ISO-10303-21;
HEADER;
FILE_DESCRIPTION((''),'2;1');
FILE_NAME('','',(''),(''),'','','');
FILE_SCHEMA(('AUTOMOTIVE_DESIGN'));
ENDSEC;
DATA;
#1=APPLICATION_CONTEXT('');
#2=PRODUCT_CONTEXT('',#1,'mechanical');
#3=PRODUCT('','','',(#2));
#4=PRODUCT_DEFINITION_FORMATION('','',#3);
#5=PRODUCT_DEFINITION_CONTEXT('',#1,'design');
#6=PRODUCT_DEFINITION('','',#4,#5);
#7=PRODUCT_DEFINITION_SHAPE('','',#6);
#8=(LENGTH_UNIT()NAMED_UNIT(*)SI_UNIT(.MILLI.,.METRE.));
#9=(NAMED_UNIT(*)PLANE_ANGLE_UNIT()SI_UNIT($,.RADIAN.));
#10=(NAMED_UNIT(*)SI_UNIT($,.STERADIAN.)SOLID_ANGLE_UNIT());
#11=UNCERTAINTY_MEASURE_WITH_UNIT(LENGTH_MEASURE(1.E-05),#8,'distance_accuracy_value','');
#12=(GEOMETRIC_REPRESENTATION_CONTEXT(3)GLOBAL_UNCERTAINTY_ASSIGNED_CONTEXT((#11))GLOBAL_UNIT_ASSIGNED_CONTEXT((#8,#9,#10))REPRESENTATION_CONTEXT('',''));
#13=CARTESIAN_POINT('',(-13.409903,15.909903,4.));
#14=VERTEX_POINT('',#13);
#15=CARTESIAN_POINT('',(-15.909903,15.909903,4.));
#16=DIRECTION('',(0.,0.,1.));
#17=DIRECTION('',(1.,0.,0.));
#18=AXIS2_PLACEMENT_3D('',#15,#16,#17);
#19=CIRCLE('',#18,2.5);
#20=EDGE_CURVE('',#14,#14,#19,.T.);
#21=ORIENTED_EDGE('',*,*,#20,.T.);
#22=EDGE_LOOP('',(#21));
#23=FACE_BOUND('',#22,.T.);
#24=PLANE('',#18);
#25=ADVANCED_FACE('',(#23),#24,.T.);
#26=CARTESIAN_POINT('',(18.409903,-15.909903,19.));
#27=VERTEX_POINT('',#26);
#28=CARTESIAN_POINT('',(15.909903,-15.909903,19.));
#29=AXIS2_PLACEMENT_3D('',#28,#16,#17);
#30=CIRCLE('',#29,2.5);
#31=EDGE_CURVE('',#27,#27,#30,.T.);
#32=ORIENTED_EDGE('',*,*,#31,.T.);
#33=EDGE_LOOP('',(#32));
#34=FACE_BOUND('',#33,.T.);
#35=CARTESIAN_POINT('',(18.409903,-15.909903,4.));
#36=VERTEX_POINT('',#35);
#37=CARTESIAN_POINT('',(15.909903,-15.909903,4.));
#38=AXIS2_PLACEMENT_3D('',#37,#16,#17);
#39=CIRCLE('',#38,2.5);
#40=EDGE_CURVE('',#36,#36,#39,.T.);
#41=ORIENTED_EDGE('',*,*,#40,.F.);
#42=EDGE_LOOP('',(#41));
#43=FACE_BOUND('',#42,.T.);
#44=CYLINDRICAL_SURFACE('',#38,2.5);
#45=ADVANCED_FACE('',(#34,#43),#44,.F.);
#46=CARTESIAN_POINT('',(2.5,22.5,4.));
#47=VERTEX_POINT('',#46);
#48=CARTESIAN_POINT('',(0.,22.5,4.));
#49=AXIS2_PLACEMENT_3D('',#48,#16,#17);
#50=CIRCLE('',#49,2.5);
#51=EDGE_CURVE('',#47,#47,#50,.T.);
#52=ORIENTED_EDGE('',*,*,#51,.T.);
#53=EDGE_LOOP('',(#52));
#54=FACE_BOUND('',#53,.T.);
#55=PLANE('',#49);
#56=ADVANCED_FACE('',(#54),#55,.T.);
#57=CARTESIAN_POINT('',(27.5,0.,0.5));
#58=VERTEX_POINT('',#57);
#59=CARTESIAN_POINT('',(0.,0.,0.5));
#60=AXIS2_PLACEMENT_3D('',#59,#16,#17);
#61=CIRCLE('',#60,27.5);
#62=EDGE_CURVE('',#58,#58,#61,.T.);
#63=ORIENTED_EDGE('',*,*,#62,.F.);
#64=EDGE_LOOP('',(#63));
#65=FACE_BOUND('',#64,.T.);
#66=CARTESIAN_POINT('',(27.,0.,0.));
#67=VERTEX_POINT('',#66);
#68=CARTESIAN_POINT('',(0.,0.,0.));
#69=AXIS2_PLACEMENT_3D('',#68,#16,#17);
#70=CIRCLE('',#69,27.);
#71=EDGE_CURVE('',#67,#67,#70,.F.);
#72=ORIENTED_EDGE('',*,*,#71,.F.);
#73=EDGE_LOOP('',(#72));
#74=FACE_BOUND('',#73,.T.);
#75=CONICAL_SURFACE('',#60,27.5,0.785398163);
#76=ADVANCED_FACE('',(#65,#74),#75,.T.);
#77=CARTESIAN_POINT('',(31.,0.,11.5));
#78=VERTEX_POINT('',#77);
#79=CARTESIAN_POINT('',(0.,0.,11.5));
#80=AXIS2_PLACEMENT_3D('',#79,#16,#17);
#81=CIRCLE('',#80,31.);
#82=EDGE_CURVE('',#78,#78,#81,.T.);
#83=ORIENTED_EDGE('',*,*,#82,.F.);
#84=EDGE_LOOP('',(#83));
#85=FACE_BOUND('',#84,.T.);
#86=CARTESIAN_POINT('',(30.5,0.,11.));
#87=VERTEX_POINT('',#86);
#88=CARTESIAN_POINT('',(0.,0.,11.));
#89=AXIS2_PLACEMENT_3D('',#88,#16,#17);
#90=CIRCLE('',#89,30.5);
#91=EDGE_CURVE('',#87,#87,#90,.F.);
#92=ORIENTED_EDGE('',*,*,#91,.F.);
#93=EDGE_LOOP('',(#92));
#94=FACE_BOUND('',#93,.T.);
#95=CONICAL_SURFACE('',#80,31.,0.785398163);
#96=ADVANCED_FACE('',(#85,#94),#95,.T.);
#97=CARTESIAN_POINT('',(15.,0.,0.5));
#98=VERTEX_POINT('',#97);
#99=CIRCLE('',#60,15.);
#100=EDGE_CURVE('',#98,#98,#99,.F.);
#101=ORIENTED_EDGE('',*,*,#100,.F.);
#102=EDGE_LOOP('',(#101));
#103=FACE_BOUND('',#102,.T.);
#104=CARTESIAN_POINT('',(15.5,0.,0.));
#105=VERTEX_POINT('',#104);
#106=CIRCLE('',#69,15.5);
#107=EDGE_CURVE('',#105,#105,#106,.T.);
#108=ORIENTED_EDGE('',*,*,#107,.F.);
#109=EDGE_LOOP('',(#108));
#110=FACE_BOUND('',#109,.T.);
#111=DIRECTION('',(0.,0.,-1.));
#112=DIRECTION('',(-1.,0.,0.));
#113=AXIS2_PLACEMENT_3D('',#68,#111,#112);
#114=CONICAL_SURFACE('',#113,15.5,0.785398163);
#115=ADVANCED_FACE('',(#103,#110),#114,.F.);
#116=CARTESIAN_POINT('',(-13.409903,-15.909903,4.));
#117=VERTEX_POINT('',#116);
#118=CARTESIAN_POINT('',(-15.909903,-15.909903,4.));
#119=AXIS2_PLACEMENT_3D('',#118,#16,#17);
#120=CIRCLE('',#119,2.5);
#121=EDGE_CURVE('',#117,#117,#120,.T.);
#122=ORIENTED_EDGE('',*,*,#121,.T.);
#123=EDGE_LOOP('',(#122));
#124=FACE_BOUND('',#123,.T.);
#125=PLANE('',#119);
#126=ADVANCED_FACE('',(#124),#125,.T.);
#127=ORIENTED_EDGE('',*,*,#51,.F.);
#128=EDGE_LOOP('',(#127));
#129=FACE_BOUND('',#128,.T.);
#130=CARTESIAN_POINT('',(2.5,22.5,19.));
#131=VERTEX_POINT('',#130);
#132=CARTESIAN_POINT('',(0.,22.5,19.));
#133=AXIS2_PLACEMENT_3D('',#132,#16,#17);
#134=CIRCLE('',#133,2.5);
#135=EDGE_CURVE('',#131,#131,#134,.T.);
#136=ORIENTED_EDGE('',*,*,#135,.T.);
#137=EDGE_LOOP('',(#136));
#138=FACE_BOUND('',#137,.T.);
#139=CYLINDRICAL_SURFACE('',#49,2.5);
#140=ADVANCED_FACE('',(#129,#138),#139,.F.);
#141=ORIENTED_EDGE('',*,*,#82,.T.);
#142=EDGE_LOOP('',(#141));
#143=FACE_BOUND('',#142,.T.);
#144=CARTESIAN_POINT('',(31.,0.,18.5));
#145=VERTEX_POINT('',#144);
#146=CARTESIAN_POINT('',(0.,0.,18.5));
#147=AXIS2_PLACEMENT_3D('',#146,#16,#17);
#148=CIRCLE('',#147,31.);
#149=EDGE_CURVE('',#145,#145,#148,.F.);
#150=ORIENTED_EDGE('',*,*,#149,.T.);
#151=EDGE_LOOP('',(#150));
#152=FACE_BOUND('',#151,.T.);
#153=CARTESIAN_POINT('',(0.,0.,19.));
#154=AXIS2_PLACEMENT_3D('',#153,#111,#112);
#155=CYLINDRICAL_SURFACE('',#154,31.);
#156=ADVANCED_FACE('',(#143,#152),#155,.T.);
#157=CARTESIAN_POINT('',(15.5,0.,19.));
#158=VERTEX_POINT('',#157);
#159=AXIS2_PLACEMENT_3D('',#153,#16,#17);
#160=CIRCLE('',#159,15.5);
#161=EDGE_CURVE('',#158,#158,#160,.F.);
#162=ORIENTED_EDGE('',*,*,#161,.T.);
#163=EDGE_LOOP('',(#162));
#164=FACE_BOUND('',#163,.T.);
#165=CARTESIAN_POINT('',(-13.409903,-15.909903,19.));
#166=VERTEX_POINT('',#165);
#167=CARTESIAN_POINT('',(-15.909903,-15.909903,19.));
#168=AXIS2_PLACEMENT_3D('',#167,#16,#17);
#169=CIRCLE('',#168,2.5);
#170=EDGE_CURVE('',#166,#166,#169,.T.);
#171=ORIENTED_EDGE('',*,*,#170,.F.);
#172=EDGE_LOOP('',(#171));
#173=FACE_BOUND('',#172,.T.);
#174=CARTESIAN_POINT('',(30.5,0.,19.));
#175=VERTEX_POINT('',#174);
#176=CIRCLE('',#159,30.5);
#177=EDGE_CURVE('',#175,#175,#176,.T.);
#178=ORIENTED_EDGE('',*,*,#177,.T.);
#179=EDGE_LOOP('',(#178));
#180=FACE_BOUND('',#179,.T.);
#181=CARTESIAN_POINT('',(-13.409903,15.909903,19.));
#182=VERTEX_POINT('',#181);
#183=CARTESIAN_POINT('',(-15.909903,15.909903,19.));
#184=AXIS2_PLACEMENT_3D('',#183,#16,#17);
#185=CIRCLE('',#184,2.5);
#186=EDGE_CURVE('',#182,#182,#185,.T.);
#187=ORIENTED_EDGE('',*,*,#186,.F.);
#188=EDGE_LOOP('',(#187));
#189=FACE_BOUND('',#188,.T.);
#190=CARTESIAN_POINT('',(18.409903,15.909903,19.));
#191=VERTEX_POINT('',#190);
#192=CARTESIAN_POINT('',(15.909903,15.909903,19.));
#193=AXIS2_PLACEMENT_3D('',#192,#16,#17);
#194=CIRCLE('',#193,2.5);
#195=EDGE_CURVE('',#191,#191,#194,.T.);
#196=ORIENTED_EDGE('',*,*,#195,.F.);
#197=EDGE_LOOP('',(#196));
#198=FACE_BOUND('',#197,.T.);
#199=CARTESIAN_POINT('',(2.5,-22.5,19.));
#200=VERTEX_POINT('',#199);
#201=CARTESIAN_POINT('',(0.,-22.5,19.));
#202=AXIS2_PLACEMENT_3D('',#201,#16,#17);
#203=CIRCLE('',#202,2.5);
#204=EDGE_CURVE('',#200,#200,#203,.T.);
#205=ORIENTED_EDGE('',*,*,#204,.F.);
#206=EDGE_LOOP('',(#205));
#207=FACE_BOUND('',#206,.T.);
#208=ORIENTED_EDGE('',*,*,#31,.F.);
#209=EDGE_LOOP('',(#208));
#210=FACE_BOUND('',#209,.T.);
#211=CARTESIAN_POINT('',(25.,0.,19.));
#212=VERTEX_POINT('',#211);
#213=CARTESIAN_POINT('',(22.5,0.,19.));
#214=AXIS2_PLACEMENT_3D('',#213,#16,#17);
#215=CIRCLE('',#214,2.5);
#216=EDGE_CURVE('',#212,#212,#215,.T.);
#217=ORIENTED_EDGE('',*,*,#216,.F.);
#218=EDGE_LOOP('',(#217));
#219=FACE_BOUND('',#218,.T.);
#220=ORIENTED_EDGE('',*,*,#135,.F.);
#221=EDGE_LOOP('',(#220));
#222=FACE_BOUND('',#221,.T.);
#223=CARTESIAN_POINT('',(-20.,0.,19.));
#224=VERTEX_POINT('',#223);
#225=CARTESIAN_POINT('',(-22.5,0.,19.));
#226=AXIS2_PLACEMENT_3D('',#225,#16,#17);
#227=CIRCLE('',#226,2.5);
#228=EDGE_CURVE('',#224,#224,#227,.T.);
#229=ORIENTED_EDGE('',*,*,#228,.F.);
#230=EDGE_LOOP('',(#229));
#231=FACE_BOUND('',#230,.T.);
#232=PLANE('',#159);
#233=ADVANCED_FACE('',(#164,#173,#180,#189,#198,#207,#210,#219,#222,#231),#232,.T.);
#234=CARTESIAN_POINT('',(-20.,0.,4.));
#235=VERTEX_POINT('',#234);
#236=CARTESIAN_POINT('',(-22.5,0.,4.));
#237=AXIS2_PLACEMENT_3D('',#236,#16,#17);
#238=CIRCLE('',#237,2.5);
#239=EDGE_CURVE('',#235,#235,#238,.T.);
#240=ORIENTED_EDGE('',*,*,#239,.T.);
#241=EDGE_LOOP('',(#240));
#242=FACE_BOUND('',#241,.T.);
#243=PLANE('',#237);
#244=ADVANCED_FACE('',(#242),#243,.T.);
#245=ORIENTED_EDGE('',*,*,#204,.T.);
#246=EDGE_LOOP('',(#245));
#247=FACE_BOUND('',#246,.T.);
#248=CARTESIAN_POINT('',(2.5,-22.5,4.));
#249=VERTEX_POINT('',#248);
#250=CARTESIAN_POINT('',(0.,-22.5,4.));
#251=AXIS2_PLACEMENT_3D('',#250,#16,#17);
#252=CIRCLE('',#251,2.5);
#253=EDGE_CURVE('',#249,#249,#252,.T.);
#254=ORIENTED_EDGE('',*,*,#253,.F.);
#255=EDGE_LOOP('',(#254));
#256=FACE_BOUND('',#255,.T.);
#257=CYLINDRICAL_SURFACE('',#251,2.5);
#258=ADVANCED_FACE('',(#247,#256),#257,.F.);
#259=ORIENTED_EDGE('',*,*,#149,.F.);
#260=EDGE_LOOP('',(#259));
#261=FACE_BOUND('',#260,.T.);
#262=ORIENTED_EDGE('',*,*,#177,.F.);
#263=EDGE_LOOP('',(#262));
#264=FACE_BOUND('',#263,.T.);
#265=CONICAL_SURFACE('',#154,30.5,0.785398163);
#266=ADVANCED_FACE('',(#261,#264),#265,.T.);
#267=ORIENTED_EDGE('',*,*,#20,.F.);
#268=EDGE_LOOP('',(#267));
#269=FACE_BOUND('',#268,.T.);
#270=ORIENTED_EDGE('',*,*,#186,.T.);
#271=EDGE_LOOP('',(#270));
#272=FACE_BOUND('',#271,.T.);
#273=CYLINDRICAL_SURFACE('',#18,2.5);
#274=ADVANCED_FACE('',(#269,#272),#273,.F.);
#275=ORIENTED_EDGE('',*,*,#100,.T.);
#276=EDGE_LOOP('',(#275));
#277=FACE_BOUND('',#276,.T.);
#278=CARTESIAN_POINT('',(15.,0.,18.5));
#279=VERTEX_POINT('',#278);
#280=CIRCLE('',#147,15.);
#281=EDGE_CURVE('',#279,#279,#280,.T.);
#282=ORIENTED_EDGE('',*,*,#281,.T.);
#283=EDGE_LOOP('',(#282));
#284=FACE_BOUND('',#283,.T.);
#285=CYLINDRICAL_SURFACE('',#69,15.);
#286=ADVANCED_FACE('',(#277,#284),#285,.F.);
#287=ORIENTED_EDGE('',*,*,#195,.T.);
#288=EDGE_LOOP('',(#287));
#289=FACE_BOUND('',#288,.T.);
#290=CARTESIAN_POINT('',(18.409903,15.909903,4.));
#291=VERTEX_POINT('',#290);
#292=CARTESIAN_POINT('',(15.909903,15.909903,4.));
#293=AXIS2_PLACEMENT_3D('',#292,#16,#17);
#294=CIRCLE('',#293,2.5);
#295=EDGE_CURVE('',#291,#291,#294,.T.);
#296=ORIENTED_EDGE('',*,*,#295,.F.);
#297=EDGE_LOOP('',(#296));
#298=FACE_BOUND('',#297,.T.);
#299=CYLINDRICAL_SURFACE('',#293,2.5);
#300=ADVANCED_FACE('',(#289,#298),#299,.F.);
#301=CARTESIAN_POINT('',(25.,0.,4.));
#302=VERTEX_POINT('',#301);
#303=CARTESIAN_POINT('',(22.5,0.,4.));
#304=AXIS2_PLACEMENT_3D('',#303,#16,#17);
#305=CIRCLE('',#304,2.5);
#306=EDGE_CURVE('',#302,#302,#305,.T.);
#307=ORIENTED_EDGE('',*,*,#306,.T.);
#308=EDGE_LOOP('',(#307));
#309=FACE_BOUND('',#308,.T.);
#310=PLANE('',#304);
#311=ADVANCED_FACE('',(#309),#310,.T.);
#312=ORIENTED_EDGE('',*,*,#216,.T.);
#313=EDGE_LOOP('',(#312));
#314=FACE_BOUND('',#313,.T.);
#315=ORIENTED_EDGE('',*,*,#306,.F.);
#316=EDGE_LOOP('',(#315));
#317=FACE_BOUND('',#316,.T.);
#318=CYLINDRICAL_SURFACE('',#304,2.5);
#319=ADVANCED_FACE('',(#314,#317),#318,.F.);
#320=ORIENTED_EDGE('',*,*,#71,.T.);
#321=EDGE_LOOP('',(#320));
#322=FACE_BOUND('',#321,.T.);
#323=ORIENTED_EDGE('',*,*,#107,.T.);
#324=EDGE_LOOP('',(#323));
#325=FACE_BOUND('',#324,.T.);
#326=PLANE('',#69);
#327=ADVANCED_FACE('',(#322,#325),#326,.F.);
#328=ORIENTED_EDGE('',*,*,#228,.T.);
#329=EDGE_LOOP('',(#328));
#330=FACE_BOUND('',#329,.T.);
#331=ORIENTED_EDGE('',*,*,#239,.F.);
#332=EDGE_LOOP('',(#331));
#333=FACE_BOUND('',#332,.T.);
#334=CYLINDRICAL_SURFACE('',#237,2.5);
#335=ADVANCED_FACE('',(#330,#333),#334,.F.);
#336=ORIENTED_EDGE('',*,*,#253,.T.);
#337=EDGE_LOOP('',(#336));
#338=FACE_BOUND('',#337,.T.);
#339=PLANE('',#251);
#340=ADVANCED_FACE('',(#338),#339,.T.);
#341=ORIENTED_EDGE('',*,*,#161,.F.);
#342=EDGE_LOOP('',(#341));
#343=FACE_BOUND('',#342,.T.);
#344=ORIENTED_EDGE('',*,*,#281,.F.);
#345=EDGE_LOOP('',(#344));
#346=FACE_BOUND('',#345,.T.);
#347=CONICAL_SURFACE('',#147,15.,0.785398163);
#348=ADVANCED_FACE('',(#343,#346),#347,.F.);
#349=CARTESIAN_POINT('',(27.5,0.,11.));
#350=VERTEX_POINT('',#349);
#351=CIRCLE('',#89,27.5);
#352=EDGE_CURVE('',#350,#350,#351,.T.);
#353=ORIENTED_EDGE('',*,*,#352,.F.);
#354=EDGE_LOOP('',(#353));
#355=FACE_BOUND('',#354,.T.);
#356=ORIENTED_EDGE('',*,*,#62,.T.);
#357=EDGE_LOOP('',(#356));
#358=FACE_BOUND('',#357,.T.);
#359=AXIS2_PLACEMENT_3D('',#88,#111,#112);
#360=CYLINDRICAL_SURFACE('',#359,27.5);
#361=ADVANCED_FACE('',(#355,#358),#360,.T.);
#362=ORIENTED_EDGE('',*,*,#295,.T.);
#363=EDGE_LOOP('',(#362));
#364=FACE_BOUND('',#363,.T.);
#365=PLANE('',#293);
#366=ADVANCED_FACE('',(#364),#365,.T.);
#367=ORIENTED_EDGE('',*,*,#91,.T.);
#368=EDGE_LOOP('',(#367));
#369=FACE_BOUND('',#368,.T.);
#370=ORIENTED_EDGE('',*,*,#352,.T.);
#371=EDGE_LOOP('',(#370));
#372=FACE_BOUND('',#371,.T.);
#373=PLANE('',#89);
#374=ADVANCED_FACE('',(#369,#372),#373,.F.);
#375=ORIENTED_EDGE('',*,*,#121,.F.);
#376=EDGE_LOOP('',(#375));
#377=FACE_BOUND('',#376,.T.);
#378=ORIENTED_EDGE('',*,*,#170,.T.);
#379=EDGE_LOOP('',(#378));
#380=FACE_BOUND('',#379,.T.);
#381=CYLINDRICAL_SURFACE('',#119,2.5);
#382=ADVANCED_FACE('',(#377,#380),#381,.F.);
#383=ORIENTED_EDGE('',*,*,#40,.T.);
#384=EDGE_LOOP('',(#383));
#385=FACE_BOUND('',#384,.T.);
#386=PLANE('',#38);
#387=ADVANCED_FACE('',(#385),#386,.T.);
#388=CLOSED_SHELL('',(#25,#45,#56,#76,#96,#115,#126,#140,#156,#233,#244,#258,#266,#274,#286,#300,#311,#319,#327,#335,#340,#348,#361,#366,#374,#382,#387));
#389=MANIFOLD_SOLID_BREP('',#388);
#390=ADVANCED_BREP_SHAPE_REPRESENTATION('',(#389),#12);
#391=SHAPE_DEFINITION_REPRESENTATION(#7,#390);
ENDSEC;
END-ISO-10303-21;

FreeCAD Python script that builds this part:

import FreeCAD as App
import Part
import Sketcher
Q = App.Units.Quantity


def edges_at(feature, points):
    """Names of the edges that pass closest to the given points."""
    edges = feature.Shape.Edges
    near = lambda p: min(range(len(edges)), key=lambda i: edges[i].distToShape(Part.Vertex(*p))[0])
    return sorted({f"Edge{near(p) + 1}" for p in points})

doc = App.newDocument("Part")
body = doc.addObject("PartDesign::Body", "Body")

# Sketch on XY plane
sketch1 = body.newObject("Sketcher::SketchObject", "Sketch")
sketch1.AttachmentSupport = (doc.getObject("XY_Plane"), [""])
sketch1.MapMode = "FlatFace"
sketch1.addGeometry(Part.Circle(App.Vector(0, 0, 0), App.Vector(0, 0, 1), 27.5), False)
sketch1.addConstraint(Sketcher.Constraint("Coincident", 0, 3, -1, 1))
sketch1.addConstraint(Sketcher.Constraint("Diameter", 0, Q("55 mm")))
pad1 = body.newObject("PartDesign::Pad", "Pad")
pad1.Profile = sketch1
pad1.Length = 11

# Sketch on XY plane
sketch2 = body.newObject("Sketcher::SketchObject", "Sketch001")
sketch2.AttachmentSupport = (doc.getObject("XY_Plane"), [""])
sketch2.MapMode = "FlatFace"
sketch2.AttachmentOffset = App.Placement(App.Vector(0, 0, 11), App.Rotation())
sketch2.addGeometry(Part.Circle(App.Vector(0, 0, 0), App.Vector(0, 0, 1), 31), False)
sketch2.addConstraint(Sketcher.Constraint("Coincident", 0, 3, -1, 1))
sketch2.addConstraint(Sketcher.Constraint("Diameter", 0, Q("62 mm")))
pad2 = body.newObject("PartDesign::Pad", "Pad001")
pad2.Profile = sketch2
pad2.Length = 8

# Sketch on XY plane
sketch3 = body.newObject("Sketcher::SketchObject", "Sketch002")
sketch3.AttachmentSupport = (doc.getObject("XY_Plane"), [""])
sketch3.MapMode = "FlatFace"
sketch3.AttachmentOffset = App.Placement(App.Vector(0, 0, 19), App.Rotation())
sketch3.addGeometry(Part.Circle(App.Vector(0, 22.5, 0), App.Vector(0, 0, 1), 2.5), False)
sketch3.addGeometry(Part.Circle(App.Vector(15.909903, 15.909903, 0), App.Vector(0, 0, 1), 2.5), False)
sketch3.addGeometry(Part.Circle(App.Vector(22.5, 0, 0), App.Vector(0, 0, 1), 2.5), False)
sketch3.addGeometry(Part.Circle(App.Vector(15.909903, -15.909903, 0), App.Vector(0, 0, 1), 2.5), False)
sketch3.addGeometry(Part.Circle(App.Vector(0, -22.5, 0), App.Vector(0, 0, 1), 2.5), False)
sketch3.addGeometry(Part.Circle(App.Vector(-15.909903, -15.909903, 0), App.Vector(0, 0, 1), 2.5), False)
sketch3.addGeometry(Part.Circle(App.Vector(-22.5, 0, 0), App.Vector(0, 0, 1), 2.5), False)
sketch3.addGeometry(Part.Circle(App.Vector(-15.909903, 15.909903, 0), App.Vector(0, 0, 1), 2.5), False)
sketch3.addConstraint(Sketcher.Constraint("Equal", 0, 1))
sketch3.addConstraint(Sketcher.Constraint("Equal", 1, 2))
sketch3.addConstraint(Sketcher.Constraint("Equal", 2, 3))
sketch3.addConstraint(Sketcher.Constraint("Equal", 3, 4))
sketch3.addConstraint(Sketcher.Constraint("Equal", 4, 5))
sketch3.addConstraint(Sketcher.Constraint("Equal", 5, 6))
sketch3.addConstraint(Sketcher.Constraint("Equal", 6, 7))
sketch3.addConstraint(Sketcher.Constraint("Symmetric", 0, 3, 4, 3, -1, 1))
sketch3.addConstraint(Sketcher.Constraint("Symmetric", 1, 3, 5, 3, -1, 1))
sketch3.addConstraint(Sketcher.Constraint("Symmetric", 2, 3, 6, 3, -1, 1))
sketch3.addConstraint(Sketcher.Constraint("Symmetric", 3, 3, 7, 3, -1, 1))
sketch3.addConstraint(Sketcher.Constraint("Symmetric", 3, 3, 5, 3, -2))
sketch3.addConstraint(Sketcher.Constraint("PointOnObject", 0, 3, -2))
sketch3.addConstraint(Sketcher.Constraint("PointOnObject", 2, 3, -1))
sketch3.addConstraint(Sketcher.Constraint("Diameter", 0, Q("5 mm")))
sketch3.addConstraint(Sketcher.Constraint("DistanceY", 4, 3, 0, 3, Q("45 mm")))
sketch3.addConstraint(Sketcher.Constraint("DistanceX", -1, 1, 2, 3, Q("22.5 mm")))
sketch3.addConstraint(Sketcher.Constraint("DistanceX", -1, 1, 1, 3, Q("15.909903 mm")))
sketch3.addConstraint(Sketcher.Constraint("DistanceY", -1, 1, 1, 3, Q("15.909903 mm")))
pocket1 = body.newObject("PartDesign::Pocket", "Pocket")
pocket1.Profile = sketch3
pocket1.Length = 15

# Sketch on XY plane
sketch4 = body.newObject("Sketcher::SketchObject", "Sketch003")
sketch4.AttachmentSupport = (doc.getObject("XY_Plane"), [""])
sketch4.MapMode = "FlatFace"
sketch4.AttachmentOffset = App.Placement(App.Vector(0, 0, 19), App.Rotation())
sketch4.addGeometry(Part.Circle(App.Vector(0, 0, 0), App.Vector(0, 0, 1), 15), False)
sketch4.addConstraint(Sketcher.Constraint("Coincident", 0, 3, -1, 1))
sketch4.addConstraint(Sketcher.Constraint("Diameter", 0, Q("30 mm")))
pocket2 = body.newObject("PartDesign::Pocket", "Pocket001")
pocket2.Profile = sketch4
pocket2.Type = "ThroughAll"
doc.recompute()

chamfer = body.newObject("PartDesign::Chamfer", "Chamfer")
chamfer.Base = (pocket2, edges_at(pocket2, [
    (-27.5, 0, 0),
    (-15, 0, 0),
    (-31, 0, 11),
    (-31, 0, 19),
]))
chamfer.Size = 0.5
doc.recompute()

chamfer2 = body.newObject("PartDesign::Chamfer", "Chamfer001")
chamfer2.Base = (chamfer, edges_at(chamfer, [(-15, 0, 19)]))
chamfer2.Size = 0.5

doc.recompute()
